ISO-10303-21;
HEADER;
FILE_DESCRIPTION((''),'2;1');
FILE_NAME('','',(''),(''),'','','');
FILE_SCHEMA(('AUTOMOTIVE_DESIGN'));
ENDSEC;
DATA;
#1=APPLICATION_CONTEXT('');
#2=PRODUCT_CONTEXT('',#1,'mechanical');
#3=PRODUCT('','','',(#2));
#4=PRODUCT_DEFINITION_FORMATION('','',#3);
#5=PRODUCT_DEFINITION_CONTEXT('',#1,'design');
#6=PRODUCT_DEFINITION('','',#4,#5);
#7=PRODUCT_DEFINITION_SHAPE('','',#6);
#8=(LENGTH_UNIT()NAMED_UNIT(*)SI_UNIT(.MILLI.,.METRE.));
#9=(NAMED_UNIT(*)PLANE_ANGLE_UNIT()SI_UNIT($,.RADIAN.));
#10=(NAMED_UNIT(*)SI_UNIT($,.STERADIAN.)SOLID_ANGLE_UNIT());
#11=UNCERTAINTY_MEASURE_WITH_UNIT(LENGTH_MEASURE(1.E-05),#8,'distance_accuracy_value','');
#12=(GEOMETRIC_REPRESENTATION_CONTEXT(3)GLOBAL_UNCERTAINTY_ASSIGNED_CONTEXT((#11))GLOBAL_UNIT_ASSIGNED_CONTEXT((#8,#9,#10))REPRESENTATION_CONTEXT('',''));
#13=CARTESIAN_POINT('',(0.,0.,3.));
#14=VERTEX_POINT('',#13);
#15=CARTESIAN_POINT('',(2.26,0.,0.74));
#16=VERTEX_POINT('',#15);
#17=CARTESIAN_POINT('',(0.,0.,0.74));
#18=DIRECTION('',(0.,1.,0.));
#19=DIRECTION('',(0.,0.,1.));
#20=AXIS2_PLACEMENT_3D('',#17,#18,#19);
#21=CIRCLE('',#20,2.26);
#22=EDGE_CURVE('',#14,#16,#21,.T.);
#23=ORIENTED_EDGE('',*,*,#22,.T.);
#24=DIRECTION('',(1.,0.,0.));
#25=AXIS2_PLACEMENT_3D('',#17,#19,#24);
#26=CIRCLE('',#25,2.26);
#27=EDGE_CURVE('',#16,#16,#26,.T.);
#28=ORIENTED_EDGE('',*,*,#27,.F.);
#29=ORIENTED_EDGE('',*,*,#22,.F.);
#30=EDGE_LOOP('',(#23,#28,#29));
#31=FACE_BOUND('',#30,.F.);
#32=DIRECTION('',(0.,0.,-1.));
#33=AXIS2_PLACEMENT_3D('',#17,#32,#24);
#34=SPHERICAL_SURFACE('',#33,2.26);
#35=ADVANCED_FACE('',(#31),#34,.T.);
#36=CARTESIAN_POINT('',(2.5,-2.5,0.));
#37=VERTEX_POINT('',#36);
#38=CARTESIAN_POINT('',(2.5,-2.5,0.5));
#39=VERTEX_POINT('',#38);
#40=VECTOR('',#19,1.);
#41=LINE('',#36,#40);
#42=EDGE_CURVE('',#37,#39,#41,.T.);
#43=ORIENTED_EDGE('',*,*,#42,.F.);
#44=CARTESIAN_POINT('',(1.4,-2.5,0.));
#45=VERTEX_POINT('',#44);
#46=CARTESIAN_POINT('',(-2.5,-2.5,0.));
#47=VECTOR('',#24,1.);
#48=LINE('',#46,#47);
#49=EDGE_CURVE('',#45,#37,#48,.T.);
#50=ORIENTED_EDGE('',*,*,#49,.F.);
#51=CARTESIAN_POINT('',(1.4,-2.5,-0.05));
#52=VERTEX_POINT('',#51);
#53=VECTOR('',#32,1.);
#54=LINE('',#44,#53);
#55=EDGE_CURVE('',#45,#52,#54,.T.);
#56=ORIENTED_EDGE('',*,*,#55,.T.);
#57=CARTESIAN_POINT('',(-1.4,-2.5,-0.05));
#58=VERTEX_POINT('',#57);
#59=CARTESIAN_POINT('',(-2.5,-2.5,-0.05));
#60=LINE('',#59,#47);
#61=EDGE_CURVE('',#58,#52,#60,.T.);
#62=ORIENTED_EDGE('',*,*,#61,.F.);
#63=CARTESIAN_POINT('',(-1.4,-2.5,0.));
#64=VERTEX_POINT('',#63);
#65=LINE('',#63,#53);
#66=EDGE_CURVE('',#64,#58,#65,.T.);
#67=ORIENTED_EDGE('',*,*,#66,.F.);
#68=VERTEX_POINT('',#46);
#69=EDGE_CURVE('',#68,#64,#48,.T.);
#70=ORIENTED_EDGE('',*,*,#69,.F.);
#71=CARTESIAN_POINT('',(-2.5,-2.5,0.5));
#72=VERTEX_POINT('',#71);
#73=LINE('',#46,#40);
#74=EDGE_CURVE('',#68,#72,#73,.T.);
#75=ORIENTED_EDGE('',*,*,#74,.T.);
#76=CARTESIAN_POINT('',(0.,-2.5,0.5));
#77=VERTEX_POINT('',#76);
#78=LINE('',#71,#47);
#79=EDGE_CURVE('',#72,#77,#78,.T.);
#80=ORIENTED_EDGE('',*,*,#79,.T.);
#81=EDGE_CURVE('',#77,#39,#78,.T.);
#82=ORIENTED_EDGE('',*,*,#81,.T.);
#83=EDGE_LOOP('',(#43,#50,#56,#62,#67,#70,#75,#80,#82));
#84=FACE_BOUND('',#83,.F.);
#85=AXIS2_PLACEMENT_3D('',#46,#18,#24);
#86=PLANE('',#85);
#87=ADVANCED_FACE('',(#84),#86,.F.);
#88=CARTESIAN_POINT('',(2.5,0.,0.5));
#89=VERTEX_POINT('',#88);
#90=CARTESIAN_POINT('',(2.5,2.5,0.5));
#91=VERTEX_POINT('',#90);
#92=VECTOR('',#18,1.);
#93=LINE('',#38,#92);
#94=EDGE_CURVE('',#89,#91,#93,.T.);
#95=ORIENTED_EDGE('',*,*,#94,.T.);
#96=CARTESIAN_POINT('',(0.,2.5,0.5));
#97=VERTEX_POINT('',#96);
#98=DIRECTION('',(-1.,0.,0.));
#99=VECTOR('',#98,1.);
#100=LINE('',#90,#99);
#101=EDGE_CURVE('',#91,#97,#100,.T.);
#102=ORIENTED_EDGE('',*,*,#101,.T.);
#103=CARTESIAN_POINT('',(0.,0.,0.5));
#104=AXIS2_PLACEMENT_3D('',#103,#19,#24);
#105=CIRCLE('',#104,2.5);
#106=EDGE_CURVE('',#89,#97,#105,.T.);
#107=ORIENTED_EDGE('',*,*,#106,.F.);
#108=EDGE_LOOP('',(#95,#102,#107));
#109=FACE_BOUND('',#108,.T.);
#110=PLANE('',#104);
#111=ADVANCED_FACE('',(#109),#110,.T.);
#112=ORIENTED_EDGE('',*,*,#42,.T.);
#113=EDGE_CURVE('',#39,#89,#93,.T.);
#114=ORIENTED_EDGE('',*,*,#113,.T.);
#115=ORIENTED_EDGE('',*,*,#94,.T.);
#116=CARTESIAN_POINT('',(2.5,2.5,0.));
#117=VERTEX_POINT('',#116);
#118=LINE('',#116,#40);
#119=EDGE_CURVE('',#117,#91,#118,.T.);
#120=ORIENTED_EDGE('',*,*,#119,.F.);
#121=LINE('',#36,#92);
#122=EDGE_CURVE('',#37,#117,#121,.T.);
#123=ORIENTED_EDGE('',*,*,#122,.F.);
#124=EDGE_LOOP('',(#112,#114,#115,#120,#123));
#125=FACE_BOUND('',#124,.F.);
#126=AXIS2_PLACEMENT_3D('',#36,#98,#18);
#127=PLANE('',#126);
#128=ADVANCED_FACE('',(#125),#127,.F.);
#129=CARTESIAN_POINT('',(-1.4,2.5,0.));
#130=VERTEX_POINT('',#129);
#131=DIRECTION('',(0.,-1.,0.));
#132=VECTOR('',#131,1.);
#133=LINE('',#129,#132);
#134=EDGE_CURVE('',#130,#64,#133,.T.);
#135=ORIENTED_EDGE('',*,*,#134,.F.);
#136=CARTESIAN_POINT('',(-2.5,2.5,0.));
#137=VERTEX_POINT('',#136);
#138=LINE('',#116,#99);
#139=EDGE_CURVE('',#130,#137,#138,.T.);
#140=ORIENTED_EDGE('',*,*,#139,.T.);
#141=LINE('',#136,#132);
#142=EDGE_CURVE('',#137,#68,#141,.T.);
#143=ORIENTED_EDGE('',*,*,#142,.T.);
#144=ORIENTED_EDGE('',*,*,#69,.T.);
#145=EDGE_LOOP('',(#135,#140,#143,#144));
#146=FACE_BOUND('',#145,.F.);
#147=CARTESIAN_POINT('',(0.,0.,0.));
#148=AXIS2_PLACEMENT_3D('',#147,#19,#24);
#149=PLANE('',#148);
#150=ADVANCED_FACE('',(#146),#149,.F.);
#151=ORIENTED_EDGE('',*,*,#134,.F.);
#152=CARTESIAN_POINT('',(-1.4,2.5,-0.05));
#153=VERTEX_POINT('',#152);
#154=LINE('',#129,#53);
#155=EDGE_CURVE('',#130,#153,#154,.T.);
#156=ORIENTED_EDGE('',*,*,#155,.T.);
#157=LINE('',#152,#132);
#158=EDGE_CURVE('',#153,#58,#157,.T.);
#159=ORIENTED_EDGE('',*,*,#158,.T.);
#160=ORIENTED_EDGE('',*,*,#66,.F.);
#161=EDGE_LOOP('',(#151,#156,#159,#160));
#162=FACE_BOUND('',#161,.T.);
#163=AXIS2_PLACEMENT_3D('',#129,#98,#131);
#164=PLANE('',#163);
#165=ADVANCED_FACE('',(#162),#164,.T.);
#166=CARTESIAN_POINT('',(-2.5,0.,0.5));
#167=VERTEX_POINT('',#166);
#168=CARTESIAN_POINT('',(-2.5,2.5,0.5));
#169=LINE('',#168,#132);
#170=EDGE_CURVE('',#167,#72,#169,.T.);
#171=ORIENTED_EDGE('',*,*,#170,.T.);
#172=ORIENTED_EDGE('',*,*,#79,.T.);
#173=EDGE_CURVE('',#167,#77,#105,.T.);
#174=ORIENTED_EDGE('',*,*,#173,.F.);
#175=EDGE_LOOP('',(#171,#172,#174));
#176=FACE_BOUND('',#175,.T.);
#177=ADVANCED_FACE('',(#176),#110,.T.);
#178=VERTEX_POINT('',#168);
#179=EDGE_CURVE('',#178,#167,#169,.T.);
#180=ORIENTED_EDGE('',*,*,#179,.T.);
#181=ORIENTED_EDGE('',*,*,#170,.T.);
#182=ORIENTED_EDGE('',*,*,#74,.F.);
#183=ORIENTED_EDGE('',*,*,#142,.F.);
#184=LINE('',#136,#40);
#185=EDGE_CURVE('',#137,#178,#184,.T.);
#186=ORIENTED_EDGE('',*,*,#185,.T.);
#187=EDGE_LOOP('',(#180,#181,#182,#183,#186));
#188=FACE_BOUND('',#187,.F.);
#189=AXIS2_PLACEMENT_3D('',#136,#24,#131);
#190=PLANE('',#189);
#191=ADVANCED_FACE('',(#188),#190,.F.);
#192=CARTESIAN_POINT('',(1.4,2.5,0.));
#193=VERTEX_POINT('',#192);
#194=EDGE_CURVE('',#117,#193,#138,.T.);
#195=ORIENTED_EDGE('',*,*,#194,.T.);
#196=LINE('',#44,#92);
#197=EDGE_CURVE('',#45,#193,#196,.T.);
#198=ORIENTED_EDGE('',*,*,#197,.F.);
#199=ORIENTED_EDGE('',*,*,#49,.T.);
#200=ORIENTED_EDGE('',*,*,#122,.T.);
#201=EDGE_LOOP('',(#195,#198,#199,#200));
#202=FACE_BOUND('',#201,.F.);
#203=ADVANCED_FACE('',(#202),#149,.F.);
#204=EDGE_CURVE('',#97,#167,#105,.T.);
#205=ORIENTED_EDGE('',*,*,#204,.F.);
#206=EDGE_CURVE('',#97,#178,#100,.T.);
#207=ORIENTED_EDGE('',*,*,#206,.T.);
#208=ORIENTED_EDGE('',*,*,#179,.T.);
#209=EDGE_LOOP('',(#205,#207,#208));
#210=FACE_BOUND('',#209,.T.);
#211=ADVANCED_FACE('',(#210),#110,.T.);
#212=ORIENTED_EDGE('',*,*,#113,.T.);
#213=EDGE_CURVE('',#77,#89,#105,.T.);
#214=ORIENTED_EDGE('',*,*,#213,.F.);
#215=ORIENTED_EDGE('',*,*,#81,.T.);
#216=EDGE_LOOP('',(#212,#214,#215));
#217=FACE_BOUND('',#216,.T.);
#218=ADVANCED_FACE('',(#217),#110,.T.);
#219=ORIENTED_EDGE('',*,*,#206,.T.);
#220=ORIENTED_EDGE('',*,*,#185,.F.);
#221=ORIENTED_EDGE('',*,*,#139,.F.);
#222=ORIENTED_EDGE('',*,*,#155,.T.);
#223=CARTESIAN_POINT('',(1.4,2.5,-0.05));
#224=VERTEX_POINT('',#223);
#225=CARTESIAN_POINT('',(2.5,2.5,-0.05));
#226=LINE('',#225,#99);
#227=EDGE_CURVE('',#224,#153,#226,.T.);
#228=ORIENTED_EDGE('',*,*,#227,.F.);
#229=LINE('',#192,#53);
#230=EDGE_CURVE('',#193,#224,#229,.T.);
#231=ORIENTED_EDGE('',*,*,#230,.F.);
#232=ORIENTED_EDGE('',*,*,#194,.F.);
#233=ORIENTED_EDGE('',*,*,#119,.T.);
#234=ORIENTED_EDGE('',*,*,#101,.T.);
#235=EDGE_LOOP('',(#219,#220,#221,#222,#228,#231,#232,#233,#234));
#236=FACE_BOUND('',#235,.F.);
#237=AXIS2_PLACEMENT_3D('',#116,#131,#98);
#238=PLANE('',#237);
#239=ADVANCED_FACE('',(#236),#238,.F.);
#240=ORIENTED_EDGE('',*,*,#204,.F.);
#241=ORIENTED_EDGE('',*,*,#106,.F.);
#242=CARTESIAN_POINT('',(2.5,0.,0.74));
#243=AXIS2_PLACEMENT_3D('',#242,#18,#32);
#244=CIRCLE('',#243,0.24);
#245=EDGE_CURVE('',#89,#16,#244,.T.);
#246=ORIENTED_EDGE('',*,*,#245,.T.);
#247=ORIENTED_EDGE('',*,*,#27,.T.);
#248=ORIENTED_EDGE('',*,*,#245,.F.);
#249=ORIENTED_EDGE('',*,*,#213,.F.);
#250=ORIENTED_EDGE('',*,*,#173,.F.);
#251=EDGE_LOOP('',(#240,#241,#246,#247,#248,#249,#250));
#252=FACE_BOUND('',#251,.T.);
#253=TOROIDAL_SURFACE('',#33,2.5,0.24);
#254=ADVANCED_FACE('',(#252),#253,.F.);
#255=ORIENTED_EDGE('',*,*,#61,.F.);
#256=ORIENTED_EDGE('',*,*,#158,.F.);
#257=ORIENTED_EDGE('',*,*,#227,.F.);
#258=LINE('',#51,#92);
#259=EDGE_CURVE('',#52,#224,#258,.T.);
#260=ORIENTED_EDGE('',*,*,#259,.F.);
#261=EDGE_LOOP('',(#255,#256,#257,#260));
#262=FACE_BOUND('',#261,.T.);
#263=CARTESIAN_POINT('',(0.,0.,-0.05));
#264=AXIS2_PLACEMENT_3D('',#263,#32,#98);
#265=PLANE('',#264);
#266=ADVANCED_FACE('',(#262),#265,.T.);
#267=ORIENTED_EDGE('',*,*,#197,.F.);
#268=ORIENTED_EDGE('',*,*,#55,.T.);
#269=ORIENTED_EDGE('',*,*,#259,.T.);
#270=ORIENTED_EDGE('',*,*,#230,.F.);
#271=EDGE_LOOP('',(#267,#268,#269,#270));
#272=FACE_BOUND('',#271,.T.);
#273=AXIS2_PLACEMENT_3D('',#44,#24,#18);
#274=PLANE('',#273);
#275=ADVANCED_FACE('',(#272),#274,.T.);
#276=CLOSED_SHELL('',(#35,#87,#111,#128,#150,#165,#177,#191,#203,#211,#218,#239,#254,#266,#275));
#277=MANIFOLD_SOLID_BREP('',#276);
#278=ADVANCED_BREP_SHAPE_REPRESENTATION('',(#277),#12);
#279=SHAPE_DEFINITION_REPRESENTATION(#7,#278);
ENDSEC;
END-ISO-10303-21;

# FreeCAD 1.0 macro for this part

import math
import FreeCAD as App
import Part
import Sketcher
Q = App.Units.Quantity


def add_polygon(sketch, points):
    """Adds a closed chain of lines whose ends are joined by coincident constraints."""
    first, n = sketch.GeometryCount, len(points)
    for a, b in zip(points, points[1:] + points[:1]):
        sketch.addGeometry(Part.LineSegment(App.Vector(*a, 0), App.Vector(*b, 0)), False)
    for i in range(n):
        sketch.addConstraint(Sketcher.Constraint("Coincident", first + i, 2, first + (i + 1) % n, 1))

doc = App.newDocument("Part")
body = doc.addObject("PartDesign::Body", "Body")

sketch1 = body.newObject("Sketcher::SketchObject", "Sketch")
sketch1.AttachmentSupport = (doc.getObject("XY_Plane"), [""])
sketch1.MapMode = "FlatFace"
add_polygon(sketch1, [(-2, 2), (-2, -2), (2, -2), (2, 2)])
sketch1.addConstraint([
    Sketcher.Constraint("Vertical", 0),
    Sketcher.Constraint("Horizontal", 1),
    Sketcher.Constraint("Vertical", 2),
    Sketcher.Constraint("Horizontal", 3),
    Sketcher.Constraint("Symmetric", 0, 2, 2, 2, -1, 1),
    Sketcher.Constraint("Equal", 3, 0),
    Sketcher.Constraint("DistanceX", 1, 1, 1, 2, Q("5 mm")),
])
pad1 = body.newObject("PartDesign::Pad", "Pad")
pad1.Profile = sketch1
pad1.Length = 0.5

sketch2 = body.newObject("Sketcher::SketchObject", "Sketch001")
sketch2.AttachmentSupport = (doc.getObject("XZ_Plane"), [""])
sketch2.MapMode = "FlatFace"
sketch2.addGeometry([
    Part.LineSegment(App.Vector(2.5, 0.5, 0), App.Vector(0, 0.5, 0)),
    Part.LineSegment(App.Vector(0, 0.5, 0), App.Vector(0, 3, 0)),
    Part.ArcOfCircle(Part.Circle(App.Vector(0, 0.74, 0), App.Vector(0, 0, 1), 2.26), math.radians(0), math.radians(90)),
    Part.ArcOfCircle(Part.Circle(App.Vector(2.5, 0.74, 0), App.Vector(0, 0, 1), 0.24), math.radians(180), math.radians(270)),
], False)
sketch2.addConstraint([
    Sketcher.Constraint("Coincident", 0, 2, 1, 1),
    Sketcher.Constraint("Coincident", 1, 2, 2, 2),
    Sketcher.Constraint("Tangent", 2, 1, 3, 1),
    Sketcher.Constraint("Tangent", 3, 2, 0, 1),
    Sketcher.Constraint("Horizontal", 0),
    Sketcher.Constraint("Vertical", 1),
    Sketcher.Constraint("PointOnObject", 2, 3, -2),
    Sketcher.Constraint("PointOnObject", 0, 2, -2),
    Sketcher.Constraint("Horizontal", 2, 3, 3, 3),
    Sketcher.Constraint("Radius", 2, Q("2.26 mm")),
    Sketcher.Constraint("DistanceY", -1, 1, 1, 2, Q("3 mm")),
    Sketcher.Constraint("Radius", 3, Q("0.24 mm")),
])
revolution = body.newObject("PartDesign::Revolution", "Revolution")
revolution.Profile = sketch2
revolution.ReferenceAxis = (sketch2, ["V_Axis"])
revolution.Angle = 360

sketch3 = body.newObject("Sketcher::SketchObject", "Sketch002")
sketch3.AttachmentSupport = (doc.getObject("XY_Plane"), [""])
sketch3.MapMode = "FlatFace"
add_polygon(sketch3, [(1.4, -2.5), (-1.4, -2.5), (-1.4, 2.5), (1.4, 2.5)])
sketch3.addConstraint([
    Sketcher.Constraint("Horizontal", 0),
    Sketcher.Constraint("Vertical", 1),
    Sketcher.Constraint("Horizontal", 2),
    Sketcher.Constraint("Vertical", 3),
    Sketcher.Constraint("Symmetric", 0, 2, 2, 2, -1, 1),
    Sketcher.Constraint("DistanceX", 0, 2, 0, 1, Q("2.8 mm")),
    Sketcher.Constraint("DistanceY", 1, 1, 1, 2, Q("5 mm")),
])
pad2 = body.newObject("PartDesign::Pad", "Pad001")
pad2.Profile = sketch3
pad2.Length = 0.05
pad2.Reversed = True

doc.recompute()
